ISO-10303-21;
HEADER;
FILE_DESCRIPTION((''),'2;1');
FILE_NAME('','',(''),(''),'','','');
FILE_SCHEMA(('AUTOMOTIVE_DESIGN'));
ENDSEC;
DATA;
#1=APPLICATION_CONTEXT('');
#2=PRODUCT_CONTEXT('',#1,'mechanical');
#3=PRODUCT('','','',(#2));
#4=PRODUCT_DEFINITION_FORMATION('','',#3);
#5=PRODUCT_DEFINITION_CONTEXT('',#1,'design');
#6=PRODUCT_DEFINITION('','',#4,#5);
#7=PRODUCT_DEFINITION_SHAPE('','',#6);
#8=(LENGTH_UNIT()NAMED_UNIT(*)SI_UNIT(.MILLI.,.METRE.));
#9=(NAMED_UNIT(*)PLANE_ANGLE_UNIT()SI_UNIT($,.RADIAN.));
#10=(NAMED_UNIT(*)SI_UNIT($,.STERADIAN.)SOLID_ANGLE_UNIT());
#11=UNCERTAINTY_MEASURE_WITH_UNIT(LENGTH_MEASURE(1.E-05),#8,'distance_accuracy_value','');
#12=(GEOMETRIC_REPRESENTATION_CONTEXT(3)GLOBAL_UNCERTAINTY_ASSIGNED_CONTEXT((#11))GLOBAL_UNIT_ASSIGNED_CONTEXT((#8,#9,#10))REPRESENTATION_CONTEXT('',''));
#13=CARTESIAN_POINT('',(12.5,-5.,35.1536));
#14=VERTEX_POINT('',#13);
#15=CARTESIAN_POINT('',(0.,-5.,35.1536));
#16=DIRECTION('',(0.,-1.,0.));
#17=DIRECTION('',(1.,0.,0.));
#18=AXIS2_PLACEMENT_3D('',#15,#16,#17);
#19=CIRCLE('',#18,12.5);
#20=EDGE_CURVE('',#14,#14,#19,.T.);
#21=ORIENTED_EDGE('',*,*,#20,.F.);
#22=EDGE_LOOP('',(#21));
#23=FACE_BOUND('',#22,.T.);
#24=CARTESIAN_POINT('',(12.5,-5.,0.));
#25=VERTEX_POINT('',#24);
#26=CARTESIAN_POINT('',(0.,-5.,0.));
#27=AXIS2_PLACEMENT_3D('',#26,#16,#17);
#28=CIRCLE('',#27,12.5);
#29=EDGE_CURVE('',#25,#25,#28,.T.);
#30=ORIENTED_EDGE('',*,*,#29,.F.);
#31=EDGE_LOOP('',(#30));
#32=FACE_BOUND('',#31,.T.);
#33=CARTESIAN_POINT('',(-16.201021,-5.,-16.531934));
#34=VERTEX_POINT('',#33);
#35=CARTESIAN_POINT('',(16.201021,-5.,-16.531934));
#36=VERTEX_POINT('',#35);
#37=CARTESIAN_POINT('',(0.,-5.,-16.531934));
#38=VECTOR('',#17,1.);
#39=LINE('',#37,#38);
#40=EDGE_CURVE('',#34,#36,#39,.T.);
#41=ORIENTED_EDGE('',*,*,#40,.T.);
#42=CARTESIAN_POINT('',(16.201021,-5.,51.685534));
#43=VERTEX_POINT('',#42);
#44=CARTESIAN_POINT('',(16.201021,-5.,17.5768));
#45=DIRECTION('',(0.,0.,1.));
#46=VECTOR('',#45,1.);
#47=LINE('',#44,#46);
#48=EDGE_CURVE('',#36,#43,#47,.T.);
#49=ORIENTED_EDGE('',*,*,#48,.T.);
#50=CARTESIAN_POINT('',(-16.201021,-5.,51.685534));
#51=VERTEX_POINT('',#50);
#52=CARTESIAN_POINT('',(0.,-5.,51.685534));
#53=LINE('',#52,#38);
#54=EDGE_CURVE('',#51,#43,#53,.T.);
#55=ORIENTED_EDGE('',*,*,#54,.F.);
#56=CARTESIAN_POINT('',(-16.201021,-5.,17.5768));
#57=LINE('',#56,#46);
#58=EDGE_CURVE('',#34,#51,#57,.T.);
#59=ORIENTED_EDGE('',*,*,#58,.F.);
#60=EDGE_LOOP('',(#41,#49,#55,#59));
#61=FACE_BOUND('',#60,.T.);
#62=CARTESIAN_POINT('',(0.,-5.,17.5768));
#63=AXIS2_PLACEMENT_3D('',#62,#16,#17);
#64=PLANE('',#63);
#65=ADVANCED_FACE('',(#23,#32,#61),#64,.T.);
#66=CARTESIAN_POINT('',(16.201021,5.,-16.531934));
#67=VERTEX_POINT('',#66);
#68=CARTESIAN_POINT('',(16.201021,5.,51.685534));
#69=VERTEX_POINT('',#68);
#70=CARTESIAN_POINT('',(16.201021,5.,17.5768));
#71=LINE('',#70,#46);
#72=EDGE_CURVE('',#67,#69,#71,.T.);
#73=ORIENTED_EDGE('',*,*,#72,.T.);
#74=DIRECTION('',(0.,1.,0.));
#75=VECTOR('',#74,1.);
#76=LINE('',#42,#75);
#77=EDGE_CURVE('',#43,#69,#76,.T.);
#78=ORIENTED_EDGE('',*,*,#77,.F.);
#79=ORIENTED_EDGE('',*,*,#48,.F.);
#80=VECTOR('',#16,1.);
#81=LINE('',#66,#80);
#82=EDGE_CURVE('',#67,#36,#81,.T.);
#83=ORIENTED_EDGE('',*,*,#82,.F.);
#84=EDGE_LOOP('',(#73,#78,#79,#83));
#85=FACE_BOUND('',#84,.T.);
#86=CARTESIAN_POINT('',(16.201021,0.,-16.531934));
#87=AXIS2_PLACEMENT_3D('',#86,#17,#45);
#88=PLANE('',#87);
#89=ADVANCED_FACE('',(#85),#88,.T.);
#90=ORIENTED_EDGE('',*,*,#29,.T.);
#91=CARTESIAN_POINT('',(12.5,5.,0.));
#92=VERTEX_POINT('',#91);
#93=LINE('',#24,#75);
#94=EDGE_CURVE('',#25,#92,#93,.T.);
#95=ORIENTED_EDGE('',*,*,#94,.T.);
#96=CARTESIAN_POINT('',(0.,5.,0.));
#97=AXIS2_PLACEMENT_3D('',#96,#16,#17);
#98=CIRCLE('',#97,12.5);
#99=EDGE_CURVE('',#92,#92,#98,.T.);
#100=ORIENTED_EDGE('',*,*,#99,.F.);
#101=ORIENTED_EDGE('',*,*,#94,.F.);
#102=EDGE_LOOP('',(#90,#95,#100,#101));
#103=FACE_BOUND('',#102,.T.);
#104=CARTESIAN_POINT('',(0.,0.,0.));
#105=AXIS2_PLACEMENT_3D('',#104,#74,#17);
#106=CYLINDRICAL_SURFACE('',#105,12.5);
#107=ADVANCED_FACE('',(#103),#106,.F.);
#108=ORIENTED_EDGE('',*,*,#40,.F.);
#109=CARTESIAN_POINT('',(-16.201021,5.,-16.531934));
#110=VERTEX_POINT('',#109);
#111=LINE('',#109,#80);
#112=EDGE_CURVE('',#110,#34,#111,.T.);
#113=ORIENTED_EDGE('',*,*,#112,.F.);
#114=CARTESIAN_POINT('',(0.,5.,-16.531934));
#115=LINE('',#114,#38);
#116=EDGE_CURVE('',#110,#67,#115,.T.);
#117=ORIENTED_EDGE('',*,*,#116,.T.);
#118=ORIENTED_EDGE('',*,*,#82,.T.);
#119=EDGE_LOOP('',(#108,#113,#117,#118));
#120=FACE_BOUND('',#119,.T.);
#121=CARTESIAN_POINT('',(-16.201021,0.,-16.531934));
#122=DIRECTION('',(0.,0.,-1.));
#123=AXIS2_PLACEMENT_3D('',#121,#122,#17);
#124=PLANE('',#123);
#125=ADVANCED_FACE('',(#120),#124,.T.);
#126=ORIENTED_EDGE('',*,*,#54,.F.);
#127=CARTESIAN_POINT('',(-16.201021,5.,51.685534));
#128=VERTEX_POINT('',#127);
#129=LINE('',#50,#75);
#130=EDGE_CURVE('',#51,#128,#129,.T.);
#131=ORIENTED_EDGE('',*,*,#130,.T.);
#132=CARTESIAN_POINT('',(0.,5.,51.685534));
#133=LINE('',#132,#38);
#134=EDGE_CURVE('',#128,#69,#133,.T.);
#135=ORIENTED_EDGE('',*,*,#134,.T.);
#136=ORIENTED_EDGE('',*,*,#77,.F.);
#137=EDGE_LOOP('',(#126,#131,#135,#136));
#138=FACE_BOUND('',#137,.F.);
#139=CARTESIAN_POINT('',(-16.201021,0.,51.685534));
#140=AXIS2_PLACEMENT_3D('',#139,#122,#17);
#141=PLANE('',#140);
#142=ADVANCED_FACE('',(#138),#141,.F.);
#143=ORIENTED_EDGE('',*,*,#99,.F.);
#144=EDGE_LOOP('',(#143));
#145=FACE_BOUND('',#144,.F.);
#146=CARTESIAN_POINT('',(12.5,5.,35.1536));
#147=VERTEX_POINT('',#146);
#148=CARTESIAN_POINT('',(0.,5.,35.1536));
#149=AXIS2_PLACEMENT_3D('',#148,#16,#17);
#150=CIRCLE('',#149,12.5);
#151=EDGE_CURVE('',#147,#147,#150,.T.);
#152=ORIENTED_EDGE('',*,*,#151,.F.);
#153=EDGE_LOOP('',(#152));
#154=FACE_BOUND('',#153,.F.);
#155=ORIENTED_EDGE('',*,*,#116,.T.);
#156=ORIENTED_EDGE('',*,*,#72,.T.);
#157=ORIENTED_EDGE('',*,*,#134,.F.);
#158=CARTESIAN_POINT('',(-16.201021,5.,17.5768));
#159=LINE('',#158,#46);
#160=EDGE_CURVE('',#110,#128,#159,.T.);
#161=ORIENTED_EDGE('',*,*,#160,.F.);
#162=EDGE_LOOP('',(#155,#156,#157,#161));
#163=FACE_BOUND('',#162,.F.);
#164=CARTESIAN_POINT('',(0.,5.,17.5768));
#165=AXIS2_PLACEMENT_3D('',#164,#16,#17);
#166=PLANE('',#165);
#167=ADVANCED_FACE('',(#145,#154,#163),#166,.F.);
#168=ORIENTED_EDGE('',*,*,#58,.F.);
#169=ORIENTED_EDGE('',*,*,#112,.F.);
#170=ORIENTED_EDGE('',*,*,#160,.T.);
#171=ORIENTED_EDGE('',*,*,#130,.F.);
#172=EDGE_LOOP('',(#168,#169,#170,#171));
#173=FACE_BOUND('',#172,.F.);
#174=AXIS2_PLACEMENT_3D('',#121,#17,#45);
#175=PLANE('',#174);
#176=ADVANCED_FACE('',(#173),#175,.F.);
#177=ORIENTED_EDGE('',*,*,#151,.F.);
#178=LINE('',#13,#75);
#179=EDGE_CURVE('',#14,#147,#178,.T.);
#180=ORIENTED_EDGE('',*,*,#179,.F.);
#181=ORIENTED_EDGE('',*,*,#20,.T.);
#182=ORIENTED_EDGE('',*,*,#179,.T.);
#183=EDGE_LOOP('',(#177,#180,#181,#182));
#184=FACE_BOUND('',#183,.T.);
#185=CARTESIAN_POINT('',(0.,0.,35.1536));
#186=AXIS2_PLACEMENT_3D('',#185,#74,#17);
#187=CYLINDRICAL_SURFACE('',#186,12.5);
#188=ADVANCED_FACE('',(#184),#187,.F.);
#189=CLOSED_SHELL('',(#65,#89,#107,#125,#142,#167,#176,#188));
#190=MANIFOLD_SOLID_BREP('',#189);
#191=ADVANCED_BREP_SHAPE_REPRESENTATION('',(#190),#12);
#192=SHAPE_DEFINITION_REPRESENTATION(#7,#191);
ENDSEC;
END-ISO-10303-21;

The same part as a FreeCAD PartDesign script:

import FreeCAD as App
import Part
import Sketcher


def add_polygon(sketch, points):
    """Adds a closed chain of lines whose ends are joined by coincident constraints."""
    first, n = sketch.GeometryCount, len(points)
    for a, b in zip(points, points[1:] + points[:1]):
        sketch.addGeometry(Part.LineSegment(App.Vector(*a, 0), App.Vector(*b, 0)), False)
    for i in range(n):
        sketch.addConstraint(Sketcher.Constraint("Coincident", first + i, 2, first + (i + 1) % n, 1))

doc = App.newDocument("Part")
body = doc.addObject("PartDesign::Body", "Body")

# Sketch on XZ plane
sketch1 = doc.addObject("Sketcher::SketchObject", "Sketch")
body.addObject(sketch1)
sketch1.AttachmentSupport = (doc.XZ_Plane, [""])
sketch1.MapMode = "FlatFace"
add_polygon(sketch1, [(-16, 52), (-16, -17), (16, -17), (16, 52)])  # lines 0-3
sketch1.addGeometry(Part.Circle(App.Vector(0, 0, 0), App.Vector(0, 0, 1), 12), False)  # 4
sketch1.addGeometry(Part.Circle(App.Vector(0, 35, 0), App.Vector(0, 0, 1), 12), False)  # 5
sketch1.addConstraint(Sketcher.Constraint("Vertical", 0))
sketch1.addConstraint(Sketcher.Constraint("Horizontal", 1))
sketch1.addConstraint(Sketcher.Constraint("Vertical", 2))
sketch1.addConstraint(Sketcher.Constraint("Horizontal", 3))
sketch1.addConstraint(Sketcher.Constraint("Coincident", 4, 3, -1, 1))
sketch1.addConstraint(Sketcher.Constraint("Equal", 4, 5))
sketch1.addConstraint(Sketcher.Constraint("PointOnObject", 5, 3, -2))
sketch1.addConstraint(Sketcher.Constraint("Diameter", 4, 25.0))
sketch1.addConstraint(Sketcher.Constraint("DistanceY", -1, 1, 5, 3, 35.1536))
sketch1.addConstraint(Sketcher.Constraint("DistanceX", 1, 1, 1, 2, 32.402042))
sketch1.addConstraint(Sketcher.Constraint("DistanceY", 0, 2, 0, 1, 68.217468))
sketch1.addConstraint(Sketcher.Constraint("DistanceX", 0, 2, -1, 1, 16.201021))
sketch1.addConstraint(Sketcher.Constraint("DistanceY", 0, 2, -1, 1, 16.531934))
pad1 = doc.addObject("PartDesign::Pad", "Pad")
body.addObject(pad1)
pad1.Profile = sketch1
pad1.Length = 10
pad1.Midplane = True

doc.recompute()
